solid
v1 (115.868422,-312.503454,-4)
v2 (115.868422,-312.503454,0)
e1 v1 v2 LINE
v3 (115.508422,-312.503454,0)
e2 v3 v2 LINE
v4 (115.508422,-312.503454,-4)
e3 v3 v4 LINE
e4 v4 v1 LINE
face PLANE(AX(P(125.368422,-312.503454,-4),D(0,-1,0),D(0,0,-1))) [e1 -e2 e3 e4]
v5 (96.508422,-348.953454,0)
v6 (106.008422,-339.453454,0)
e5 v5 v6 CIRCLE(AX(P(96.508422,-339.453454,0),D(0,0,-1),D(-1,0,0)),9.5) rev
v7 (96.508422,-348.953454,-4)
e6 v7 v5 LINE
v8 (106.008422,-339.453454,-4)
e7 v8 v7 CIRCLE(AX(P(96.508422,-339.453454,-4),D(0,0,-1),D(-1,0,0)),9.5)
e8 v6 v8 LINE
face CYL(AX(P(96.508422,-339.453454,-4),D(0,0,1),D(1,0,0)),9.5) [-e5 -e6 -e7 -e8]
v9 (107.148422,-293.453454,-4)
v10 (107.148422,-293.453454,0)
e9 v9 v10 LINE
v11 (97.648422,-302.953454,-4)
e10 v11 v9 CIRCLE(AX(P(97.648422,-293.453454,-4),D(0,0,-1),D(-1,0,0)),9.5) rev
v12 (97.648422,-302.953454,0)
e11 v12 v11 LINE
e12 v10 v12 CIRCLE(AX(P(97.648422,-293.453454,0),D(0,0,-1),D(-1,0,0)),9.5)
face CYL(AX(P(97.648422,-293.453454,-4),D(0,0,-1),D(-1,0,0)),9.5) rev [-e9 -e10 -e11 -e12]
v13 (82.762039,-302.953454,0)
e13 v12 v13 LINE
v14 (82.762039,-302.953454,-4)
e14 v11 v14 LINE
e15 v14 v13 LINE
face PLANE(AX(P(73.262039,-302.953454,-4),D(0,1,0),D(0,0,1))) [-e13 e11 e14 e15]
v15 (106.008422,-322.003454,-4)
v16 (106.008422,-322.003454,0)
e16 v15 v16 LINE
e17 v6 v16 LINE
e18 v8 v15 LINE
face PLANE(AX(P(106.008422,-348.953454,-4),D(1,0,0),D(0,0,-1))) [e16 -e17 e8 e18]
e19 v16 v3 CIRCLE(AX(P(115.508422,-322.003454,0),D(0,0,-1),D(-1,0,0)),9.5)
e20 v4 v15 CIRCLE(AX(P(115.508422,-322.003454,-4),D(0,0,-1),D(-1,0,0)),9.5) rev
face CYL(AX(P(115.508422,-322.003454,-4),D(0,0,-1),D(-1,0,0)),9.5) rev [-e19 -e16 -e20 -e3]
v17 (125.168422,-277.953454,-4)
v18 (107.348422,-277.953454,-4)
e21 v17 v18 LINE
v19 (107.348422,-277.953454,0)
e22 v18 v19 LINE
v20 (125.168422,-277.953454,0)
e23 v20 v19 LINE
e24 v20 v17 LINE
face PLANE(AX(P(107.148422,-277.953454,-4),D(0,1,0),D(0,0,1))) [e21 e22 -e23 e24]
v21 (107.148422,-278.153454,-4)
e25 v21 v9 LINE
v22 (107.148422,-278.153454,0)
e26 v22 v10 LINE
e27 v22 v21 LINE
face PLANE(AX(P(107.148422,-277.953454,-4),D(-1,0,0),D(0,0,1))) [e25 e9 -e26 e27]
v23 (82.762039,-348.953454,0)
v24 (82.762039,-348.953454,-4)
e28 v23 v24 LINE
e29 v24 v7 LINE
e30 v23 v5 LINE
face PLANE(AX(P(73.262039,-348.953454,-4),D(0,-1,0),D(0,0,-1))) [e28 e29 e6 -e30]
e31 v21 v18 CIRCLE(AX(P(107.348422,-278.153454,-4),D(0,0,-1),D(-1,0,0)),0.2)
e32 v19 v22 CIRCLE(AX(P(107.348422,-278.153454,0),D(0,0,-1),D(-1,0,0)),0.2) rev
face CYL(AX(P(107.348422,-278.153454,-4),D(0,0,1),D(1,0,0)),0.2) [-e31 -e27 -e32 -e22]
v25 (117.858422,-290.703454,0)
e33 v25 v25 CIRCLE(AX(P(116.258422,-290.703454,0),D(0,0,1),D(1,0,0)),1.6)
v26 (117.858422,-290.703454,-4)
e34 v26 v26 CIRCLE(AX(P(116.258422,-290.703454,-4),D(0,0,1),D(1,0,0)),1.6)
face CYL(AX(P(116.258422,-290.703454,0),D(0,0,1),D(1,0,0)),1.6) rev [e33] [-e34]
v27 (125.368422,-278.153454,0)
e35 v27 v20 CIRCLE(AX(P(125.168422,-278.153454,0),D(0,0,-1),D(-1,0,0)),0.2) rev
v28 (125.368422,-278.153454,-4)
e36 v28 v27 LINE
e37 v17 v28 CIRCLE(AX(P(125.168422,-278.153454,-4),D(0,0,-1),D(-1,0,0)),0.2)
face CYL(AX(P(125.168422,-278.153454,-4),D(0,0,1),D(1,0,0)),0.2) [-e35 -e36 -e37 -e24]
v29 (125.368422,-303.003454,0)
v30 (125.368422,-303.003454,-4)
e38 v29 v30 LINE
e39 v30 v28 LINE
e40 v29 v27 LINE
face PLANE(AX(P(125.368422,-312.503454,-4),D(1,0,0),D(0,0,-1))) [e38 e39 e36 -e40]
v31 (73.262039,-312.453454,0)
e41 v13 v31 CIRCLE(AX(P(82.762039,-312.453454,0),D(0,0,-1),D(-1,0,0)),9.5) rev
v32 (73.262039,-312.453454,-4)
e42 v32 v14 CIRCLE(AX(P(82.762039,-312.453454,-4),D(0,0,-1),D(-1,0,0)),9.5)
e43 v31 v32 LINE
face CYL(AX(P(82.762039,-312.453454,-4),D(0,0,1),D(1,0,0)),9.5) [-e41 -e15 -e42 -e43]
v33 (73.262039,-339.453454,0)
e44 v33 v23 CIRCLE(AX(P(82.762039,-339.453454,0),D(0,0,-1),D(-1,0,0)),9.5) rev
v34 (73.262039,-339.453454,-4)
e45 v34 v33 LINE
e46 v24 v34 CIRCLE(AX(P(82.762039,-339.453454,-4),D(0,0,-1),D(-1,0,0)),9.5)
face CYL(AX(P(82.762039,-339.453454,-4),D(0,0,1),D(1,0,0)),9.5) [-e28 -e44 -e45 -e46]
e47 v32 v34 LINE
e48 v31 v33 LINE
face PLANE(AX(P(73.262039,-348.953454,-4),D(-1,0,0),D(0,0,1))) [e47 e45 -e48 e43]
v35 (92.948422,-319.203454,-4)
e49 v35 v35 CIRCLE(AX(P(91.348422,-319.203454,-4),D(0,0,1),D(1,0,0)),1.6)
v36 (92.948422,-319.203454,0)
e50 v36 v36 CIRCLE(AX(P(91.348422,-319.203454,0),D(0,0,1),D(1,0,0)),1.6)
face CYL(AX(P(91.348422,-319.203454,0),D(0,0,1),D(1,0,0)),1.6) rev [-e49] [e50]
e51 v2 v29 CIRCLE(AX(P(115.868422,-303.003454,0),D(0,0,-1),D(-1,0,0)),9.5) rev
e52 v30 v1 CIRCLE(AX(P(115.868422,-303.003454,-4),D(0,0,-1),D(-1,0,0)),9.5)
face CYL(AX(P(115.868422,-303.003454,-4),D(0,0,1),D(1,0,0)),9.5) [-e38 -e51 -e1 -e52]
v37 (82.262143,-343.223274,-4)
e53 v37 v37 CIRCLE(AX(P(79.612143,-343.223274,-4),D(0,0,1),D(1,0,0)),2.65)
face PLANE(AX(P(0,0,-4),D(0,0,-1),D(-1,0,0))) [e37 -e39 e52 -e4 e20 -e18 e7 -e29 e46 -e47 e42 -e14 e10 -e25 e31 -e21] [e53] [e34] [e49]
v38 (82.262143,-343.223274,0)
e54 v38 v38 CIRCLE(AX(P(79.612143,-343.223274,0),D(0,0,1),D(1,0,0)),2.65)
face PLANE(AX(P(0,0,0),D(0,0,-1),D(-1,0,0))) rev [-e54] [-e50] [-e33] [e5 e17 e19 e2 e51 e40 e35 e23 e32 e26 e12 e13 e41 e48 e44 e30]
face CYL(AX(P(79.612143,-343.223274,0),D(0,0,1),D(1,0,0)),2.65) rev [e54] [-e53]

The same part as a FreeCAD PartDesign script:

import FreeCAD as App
import Part
import Sketcher
from FreeCAD import Vector


def edges_at(feature, points):
    """Names of the edges that pass closest to the given points."""
    edges = feature.Shape.Edges
    near = lambda p: min(range(len(edges)), key=lambda i: edges[i].distToShape(Part.Vertex(*p))[0])
    return sorted({f"Edge{near(p) + 1}" for p in points})

doc = App.newDocument("Part")
body = doc.addObject("PartDesign::Body", "Body")

sketch1 = doc.addObject("Sketcher::SketchObject", "Sketch")
body.addObject(sketch1)
sketch1.AttachmentSupport = (doc.XY_Plane, [""])
sketch1.MapMode = "FlatFace"
sketch1.addGeometry([
    Part.LineSegment(Vector(73.262039, -348.953454, 0), Vector(106.008422, -348.953454, 0)),
    Part.LineSegment(Vector(106.008422, -348.953454, 0), Vector(106.008422, -312.503454, 0)),
    Part.LineSegment(Vector(106.008422, -312.503454, 0), Vector(125.368422, -312.503454, 0)),
    Part.LineSegment(Vector(125.368422, -312.503454, 0), Vector(125.368422, -277.953454, 0)),
    Part.LineSegment(Vector(125.368422, -277.953454, 0), Vector(107.148422, -277.953454, 0)),
    Part.LineSegment(Vector(107.148422, -277.953454, 0), Vector(107.148422, -302.953454, 0)),
    Part.LineSegment(Vector(107.148422, -302.953454, 0), Vector(73.262039, -302.953454, 0)),
    Part.LineSegment(Vector(73.262039, -302.953454, 0), Vector(73.262039, -348.953454, 0)),
], False)
sketch1.addConstraint([
    Sketcher.Constraint("Coincident", 0, 2, 1, 1),
    Sketcher.Constraint("Coincident", 1, 2, 2, 1),
    Sketcher.Constraint("Coincident", 2, 2, 3, 1),
    Sketcher.Constraint("Coincident", 3, 2, 4, 1),
    Sketcher.Constraint("Coincident", 4, 2, 5, 1),
    Sketcher.Constraint("Coincident", 5, 2, 6, 1),
    Sketcher.Constraint("Coincident", 6, 2, 7, 1),
    Sketcher.Constraint("Coincident", 7, 2, 0, 1),
    Sketcher.Constraint("Horizontal", 0),
    Sketcher.Constraint("Vertical", 1),
    Sketcher.Constraint("Horizontal", 2),
    Sketcher.Constraint("Vertical", 3),
    Sketcher.Constraint("Horizontal", 4),
    Sketcher.Constraint("Vertical", 5),
    Sketcher.Constraint("Horizontal", 6),
    Sketcher.Constraint("Vertical", 7),
    Sketcher.Constraint("DistanceY", 5, 2, 5, 1, 25.0),
    Sketcher.Constraint("DistanceY", 7, 2, 7, 1, 46.0),
    Sketcher.Constraint("DistanceX", 2, 1, 2, 2, 19.36),
    Sketcher.Constraint("DistanceX", 4, 2, 4, 1, 18.22),
    Sketcher.Constraint("DistanceY", 1, 1, 1, 2, 36.45),
    Sketcher.Constraint("DistanceX", 0, 1, 0, 2, 32.746383),
    Sketcher.Constraint("DistanceX", -1, 1, 0, 2, 106.008422),
    Sketcher.Constraint("DistanceY", 0, 2, -1, 1, 348.953454),
])
pad1 = doc.addObject("PartDesign::Pad", "Pad")
body.addObject(pad1)
pad1.Profile = sketch1
pad1.Length = 4
pad1.Reversed = True
doc.recompute()

fillet = doc.addObject("PartDesign::Fillet", "Fillet")
body.addObject(fillet)
fillet.Base = (pad1, edges_at(pad1, [
    (73.262, -302.953, -2),
    (107.148, -302.953, -2),
    (125.368, -312.503, -2),
    (106.008, -312.503, -2),
    (106.008, -348.953, -2),
    (73.262, -348.953, -2),
]))
fillet.Radius = 9.5

sketch2 = doc.addObject("Sketcher::SketchObject", "Sketch001")
body.addObject(sketch2)
sketch2.AttachmentSupport = (doc.XY_Plane, [""])
sketch2.MapMode = "FlatFace"
sketch2.addGeometry([
    Part.Circle(Vector(116.258422, -290.703454, 0), Vector(0, 0, 1), 1.6),
    Part.Circle(Vector(91.348422, -319.203454, 0), Vector(0, 0, 1), 1.6),
], False)
sketch2.addConstraint([
    Sketcher.Constraint("Equal", 0, 1),
    Sketcher.Constraint("Diameter", 0, 3.2),
    Sketcher.Constraint("DistanceY", 1, 3, 0, 3, 28.5),
    Sketcher.Constraint("DistanceX", 1, 3, 0, 3, 24.91),
    Sketcher.Constraint("DistanceX", -1, 1, 0, 3, 116.258422),
    Sketcher.Constraint("DistanceY", 0, 3, -1, 1, 290.703454),
])
doc.recompute()
hole = doc.addObject("PartDesign::Hole", "Hole")
body.addObject(hole)
hole.Profile = sketch2
hole.ThreadType = "None"
hole.Diameter = 3.2
hole.DepthType = "ThroughAll"

sketch3 = doc.addObject("Sketcher::SketchObject", "Sketch002")
body.addObject(sketch3)
sketch3.AttachmentSupport = (doc.XY_Plane, [""])
sketch3.MapMode = "FlatFace"
sketch3.addGeometry(Part.Circle(Vector(79.612143, -343.223274, 0), Vector(0, 0, 1), 2.65), False)
sketch3.addConstraint([
    Sketcher.Constraint("Diameter", 0, 5.3),
    Sketcher.Constraint("DistanceX", -1, 1, 0, 3, 79.612143),
    Sketcher.Constraint("DistanceY", 0, 3, -1, 1, 343.223274),
])
doc.recompute()
hole2 = doc.addObject("PartDesign::Hole", "Hole001")
body.addObject(hole2)
hole2.Profile = sketch3
hole2.ThreadType = "None"
hole2.Diameter = 5.3
hole2.DepthType = "ThroughAll"
doc.recompute()

fillet2 = doc.addObject("PartDesign::Fillet", "Fillet001")
body.addObject(fillet2)
fillet2.Base = (hole2, edges_at(hole2, [(107.148, -277.953, -2), (125.368, -277.953, -2)]))
fillet2.Radius = 0.2

doc.recompute()
